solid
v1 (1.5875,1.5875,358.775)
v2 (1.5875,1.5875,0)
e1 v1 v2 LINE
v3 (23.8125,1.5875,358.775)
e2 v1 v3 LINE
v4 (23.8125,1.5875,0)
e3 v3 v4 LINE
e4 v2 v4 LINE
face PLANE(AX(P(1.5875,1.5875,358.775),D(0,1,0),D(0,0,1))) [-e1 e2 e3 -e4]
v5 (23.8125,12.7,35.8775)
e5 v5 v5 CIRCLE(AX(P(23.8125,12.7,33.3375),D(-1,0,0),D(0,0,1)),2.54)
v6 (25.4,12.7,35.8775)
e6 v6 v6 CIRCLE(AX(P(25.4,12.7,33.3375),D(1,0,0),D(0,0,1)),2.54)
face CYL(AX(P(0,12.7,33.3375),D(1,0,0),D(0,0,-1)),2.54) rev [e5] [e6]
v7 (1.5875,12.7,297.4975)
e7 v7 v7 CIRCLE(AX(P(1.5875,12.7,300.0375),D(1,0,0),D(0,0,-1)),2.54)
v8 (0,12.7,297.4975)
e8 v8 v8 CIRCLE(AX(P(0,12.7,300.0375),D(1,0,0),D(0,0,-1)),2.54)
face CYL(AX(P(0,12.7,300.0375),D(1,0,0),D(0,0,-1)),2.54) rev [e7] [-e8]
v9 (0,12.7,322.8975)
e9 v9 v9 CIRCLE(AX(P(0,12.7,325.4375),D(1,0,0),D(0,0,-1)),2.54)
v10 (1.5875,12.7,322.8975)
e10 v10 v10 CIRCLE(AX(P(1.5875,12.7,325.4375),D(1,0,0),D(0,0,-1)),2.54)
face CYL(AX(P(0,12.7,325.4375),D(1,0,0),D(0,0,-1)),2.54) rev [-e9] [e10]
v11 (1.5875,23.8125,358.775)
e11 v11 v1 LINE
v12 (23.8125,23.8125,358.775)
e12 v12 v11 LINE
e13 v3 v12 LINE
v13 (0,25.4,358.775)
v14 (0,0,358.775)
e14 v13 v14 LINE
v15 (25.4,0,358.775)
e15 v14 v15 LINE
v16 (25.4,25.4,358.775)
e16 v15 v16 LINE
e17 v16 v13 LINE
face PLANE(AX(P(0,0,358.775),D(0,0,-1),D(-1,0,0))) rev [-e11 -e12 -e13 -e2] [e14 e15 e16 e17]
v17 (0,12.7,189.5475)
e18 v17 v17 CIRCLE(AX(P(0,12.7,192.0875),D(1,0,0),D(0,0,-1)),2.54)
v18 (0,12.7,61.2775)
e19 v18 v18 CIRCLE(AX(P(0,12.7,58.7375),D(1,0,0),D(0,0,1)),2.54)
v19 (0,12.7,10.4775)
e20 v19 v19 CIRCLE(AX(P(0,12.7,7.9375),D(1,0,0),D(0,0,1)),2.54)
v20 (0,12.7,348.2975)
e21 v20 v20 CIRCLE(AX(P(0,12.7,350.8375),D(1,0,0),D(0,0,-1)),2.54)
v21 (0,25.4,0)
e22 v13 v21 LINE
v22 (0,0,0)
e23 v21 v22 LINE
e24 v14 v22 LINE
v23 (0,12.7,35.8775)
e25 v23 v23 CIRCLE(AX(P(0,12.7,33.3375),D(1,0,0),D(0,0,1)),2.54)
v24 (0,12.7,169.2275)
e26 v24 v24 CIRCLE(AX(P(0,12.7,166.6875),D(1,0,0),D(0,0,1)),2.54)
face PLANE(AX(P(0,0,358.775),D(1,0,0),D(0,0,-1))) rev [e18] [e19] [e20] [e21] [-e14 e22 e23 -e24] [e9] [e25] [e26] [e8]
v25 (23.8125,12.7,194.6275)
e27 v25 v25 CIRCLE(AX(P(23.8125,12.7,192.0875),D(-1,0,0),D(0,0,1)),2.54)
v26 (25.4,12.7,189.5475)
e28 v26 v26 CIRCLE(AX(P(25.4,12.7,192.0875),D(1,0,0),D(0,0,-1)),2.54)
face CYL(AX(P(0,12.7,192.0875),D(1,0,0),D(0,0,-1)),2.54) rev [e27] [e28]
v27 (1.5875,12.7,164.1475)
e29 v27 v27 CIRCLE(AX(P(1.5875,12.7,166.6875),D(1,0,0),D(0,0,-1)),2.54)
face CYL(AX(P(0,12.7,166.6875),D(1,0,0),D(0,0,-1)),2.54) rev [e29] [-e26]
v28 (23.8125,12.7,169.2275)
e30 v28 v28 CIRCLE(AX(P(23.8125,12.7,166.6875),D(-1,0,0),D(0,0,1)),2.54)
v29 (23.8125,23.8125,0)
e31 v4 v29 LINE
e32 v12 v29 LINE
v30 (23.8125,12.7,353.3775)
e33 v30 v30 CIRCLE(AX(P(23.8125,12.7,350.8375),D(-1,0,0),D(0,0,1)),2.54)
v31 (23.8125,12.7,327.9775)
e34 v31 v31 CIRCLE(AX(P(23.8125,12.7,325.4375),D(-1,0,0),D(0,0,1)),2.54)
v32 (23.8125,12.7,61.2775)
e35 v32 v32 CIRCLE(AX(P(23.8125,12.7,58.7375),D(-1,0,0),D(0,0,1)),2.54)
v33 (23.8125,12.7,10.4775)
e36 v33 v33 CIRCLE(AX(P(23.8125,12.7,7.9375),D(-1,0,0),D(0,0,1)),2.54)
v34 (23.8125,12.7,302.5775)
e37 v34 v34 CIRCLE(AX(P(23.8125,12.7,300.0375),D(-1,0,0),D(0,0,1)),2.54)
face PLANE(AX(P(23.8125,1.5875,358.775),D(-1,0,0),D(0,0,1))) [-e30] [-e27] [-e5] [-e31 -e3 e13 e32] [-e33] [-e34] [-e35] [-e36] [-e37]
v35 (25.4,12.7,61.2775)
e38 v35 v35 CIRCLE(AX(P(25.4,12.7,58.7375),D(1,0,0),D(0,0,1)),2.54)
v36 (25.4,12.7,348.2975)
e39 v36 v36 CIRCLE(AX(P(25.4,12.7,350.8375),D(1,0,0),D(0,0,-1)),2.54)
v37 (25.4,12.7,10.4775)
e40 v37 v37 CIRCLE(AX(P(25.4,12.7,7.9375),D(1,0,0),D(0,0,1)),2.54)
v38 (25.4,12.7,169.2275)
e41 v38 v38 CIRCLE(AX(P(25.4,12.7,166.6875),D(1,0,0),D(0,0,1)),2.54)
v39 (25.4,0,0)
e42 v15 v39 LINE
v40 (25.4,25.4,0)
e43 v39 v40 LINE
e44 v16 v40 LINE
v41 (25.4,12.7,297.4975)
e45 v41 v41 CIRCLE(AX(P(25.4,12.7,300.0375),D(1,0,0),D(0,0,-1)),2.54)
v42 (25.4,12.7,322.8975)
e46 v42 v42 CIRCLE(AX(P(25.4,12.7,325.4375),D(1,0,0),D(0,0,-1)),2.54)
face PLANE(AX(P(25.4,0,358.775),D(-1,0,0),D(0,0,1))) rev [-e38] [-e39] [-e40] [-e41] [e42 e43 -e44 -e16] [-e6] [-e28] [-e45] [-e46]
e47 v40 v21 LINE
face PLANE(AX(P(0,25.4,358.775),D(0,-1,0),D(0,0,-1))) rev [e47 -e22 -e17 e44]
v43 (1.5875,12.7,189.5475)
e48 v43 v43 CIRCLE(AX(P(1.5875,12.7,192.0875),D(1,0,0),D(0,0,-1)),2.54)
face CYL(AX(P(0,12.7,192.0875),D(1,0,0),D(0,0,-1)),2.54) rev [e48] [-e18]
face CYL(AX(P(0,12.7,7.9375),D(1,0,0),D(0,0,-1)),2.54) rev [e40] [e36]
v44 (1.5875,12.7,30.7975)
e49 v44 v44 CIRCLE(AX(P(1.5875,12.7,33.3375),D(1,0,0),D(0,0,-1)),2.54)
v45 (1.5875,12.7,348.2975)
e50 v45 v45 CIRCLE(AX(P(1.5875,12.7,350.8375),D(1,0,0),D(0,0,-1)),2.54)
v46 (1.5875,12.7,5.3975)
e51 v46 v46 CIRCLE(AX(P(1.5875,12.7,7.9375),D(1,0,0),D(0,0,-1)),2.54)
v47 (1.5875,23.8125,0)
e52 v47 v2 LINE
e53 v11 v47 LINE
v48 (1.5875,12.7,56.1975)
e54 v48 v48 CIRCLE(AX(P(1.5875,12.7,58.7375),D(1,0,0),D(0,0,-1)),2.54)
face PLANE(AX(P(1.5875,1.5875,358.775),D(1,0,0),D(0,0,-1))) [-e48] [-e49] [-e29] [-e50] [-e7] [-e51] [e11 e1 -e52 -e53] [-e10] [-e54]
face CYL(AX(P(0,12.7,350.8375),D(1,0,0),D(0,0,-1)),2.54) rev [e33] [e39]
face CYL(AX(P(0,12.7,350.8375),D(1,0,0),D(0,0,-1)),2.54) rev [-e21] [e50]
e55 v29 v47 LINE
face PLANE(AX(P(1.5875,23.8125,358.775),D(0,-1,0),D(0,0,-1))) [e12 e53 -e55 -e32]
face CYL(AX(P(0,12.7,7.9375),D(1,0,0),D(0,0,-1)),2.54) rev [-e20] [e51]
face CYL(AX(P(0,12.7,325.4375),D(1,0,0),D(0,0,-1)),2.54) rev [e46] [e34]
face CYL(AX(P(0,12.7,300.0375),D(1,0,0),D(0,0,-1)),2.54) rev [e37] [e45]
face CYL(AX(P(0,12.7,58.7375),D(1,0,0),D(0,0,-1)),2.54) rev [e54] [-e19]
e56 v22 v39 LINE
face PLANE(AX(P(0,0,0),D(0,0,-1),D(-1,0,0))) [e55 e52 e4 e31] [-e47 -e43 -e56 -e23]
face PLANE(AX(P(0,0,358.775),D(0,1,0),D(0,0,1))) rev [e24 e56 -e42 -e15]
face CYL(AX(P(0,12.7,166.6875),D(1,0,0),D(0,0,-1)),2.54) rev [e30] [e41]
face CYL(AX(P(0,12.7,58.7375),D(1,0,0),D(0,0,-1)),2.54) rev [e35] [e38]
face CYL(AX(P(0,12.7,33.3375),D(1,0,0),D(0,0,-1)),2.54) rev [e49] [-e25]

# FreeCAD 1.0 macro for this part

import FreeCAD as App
import Part
import Sketcher

V = App.Vector
Q = App.Units.Quantity

doc = App.newDocument("Part")
body = doc.addObject("PartDesign::Body", "Body")

# Sketch on XY plane
sketch1 = body.newObject("Sketcher::SketchObject", "Sketch")
sketch1.AttachmentSupport = (doc.getObject("XY_Plane"), [""])
sketch1.MapMode = "FlatFace"
sketch1.addGeometry([
    Part.LineSegment(V(0, 25, 0), V(0, 0, 0)),  # 0
    Part.LineSegment(V(0, 0, 0), V(25, 0, 0)),  # 1
    Part.LineSegment(V(25, 0, 0), V(25, 25, 0)),  # 2
    Part.LineSegment(V(25, 25, 0), V(0, 25, 0)),  # 3
    Part.LineSegment(V(24, 2, 0), V(2, 2, 0)),  # 4
    Part.LineSegment(V(2, 2, 0), V(2, 24, 0)),  # 5
    Part.LineSegment(V(2, 24, 0), V(24, 24, 0)),  # 6
    Part.LineSegment(V(24, 24, 0), V(24, 2, 0)),  # 7
], False)
sketch1.addConstraint([
    Sketcher.Constraint("Coincident", 0, 2, 1, 1),
    Sketcher.Constraint("Coincident", 1, 2, 2, 1),
    Sketcher.Constraint("Coincident", 2, 2, 3, 1),
    Sketcher.Constraint("Coincident", 3, 2, 0, 1),
    Sketcher.Constraint("Coincident", 4, 2, 5, 1),
    Sketcher.Constraint("Coincident", 5, 2, 6, 1),
    Sketcher.Constraint("Coincident", 6, 2, 7, 1),
    Sketcher.Constraint("Coincident", 7, 2, 4, 1),
    Sketcher.Constraint("Vertical", 0),
    Sketcher.Constraint("Horizontal", 1),
    Sketcher.Constraint("Vertical", 2),
    Sketcher.Constraint("Horizontal", 3),
    Sketcher.Constraint("Horizontal", 4),
    Sketcher.Constraint("Vertical", 5),
    Sketcher.Constraint("Horizontal", 6),
    Sketcher.Constraint("Vertical", 7),
    Sketcher.Constraint("Coincident", 0, 2, -1, 1),
    Sketcher.Constraint("Equal", 3, 0),
    Sketcher.Constraint("Equal", 6, 5),
    Sketcher.Constraint("DistanceX", 1, 1, 1, 2, Q("1 in")),
    Sketcher.Constraint("DistanceX", 4, 2, 4, 1, Q("0.875 in")),
    Sketcher.Constraint("DistanceX", -1, 1, 4, 2, Q("0.0625 in")),
    Sketcher.Constraint("DistanceY", -1, 1, 4, 2, Q("0.0625 in")),
])
pad1 = body.newObject("PartDesign::Pad", "Pad")
pad1.Profile = sketch1
pad1.Length = Q("14.125 in")

# Sketch on YZ plane
sketch2 = body.newObject("Sketcher::SketchObject", "Sketch001")
sketch2.AttachmentSupport = (doc.getObject("YZ_Plane"), [""])
sketch2.MapMode = "FlatFace"
sketch2.AttachmentOffset = App.Placement(V(0, 0, 1 * 25.4), App.Rotation())
sketch2.addGeometry([
    Part.Circle(V(12.7, 350.8, 0), V(0, 0, 1), 2.5),  # 0
    Part.Circle(V(12.7, 325.4, 0), V(0, 0, 1), 2.5),  # 1
    Part.Circle(V(12.7, 300, 0), V(0, 0, 1), 2.5),  # 2
    Part.Circle(V(12.7, 58.7, 0), V(0, 0, 1), 2.5),  # 3
    Part.Circle(V(12.7, 33.3, 0), V(0, 0, 1), 2.5),  # 4
    Part.Circle(V(12.7, 7.9, 0), V(0, 0, 1), 2.5),  # 5
    Part.Circle(V(12.7, 192.1, 0), V(0, 0, 1), 2.5),  # 6
    Part.Circle(V(12.7, 166.7, 0), V(0, 0, 1), 2.5),  # 7
], False)
sketch2.addConstraint([
    Sketcher.Constraint("Equal", 0, 1),
    Sketcher.Constraint("Equal", 1, 2),
    Sketcher.Constraint("Equal", 2, 3),
    Sketcher.Constraint("Equal", 3, 4),
    Sketcher.Constraint("Equal", 4, 5),
    Sketcher.Constraint("Equal", 5, 6),
    Sketcher.Constraint("Equal", 6, 7),
    Sketcher.Constraint("Vertical", 0, 3, 1, 3),
    Sketcher.Constraint("Vertical", 1, 3, 2, 3),
    Sketcher.Constraint("Vertical", 2, 3, 3, 3),
    Sketcher.Constraint("Vertical", 3, 3, 4, 3),
    Sketcher.Constraint("Vertical", 4, 3, 5, 3),
    Sketcher.Constraint("Vertical", 5, 3, 6, 3),
    Sketcher.Constraint("Vertical", 6, 3, 7, 3),
    Sketcher.Constraint("Diameter", 0, Q("0.2 in")),
    Sketcher.Constraint("DistanceY", 1, 3, 0, 3, Q("1 in")),
    Sketcher.Constraint("DistanceY", 2, 3, 1, 3, Q("1 in")),
    Sketcher.Constraint("DistanceY", 4, 3, 3, 3, Q("1 in")),
    Sketcher.Constraint("DistanceY", 5, 3, 4, 3, Q("1 in")),
    Sketcher.Constraint("DistanceY", 7, 3, 6, 3, Q("1 in")),
    Sketcher.Constraint("DistanceX", -1, 1, 0, 3, Q("0.5 in")),
    Sketcher.Constraint("DistanceY", 3, 3, 2, 3, Q("9.5 in")),
    Sketcher.Constraint("DistanceY", 6, 3, 2, 3, Q("4.25 in")),
    Sketcher.Constraint("DistanceY", -1, 1, 0, 3, Q("13.8125 in")),
])
pocket1 = body.newObject("PartDesign::Pocket", "Pocket")
pocket1.Profile = sketch2
pocket1.Type = "ThroughAll"

doc.recompute()
